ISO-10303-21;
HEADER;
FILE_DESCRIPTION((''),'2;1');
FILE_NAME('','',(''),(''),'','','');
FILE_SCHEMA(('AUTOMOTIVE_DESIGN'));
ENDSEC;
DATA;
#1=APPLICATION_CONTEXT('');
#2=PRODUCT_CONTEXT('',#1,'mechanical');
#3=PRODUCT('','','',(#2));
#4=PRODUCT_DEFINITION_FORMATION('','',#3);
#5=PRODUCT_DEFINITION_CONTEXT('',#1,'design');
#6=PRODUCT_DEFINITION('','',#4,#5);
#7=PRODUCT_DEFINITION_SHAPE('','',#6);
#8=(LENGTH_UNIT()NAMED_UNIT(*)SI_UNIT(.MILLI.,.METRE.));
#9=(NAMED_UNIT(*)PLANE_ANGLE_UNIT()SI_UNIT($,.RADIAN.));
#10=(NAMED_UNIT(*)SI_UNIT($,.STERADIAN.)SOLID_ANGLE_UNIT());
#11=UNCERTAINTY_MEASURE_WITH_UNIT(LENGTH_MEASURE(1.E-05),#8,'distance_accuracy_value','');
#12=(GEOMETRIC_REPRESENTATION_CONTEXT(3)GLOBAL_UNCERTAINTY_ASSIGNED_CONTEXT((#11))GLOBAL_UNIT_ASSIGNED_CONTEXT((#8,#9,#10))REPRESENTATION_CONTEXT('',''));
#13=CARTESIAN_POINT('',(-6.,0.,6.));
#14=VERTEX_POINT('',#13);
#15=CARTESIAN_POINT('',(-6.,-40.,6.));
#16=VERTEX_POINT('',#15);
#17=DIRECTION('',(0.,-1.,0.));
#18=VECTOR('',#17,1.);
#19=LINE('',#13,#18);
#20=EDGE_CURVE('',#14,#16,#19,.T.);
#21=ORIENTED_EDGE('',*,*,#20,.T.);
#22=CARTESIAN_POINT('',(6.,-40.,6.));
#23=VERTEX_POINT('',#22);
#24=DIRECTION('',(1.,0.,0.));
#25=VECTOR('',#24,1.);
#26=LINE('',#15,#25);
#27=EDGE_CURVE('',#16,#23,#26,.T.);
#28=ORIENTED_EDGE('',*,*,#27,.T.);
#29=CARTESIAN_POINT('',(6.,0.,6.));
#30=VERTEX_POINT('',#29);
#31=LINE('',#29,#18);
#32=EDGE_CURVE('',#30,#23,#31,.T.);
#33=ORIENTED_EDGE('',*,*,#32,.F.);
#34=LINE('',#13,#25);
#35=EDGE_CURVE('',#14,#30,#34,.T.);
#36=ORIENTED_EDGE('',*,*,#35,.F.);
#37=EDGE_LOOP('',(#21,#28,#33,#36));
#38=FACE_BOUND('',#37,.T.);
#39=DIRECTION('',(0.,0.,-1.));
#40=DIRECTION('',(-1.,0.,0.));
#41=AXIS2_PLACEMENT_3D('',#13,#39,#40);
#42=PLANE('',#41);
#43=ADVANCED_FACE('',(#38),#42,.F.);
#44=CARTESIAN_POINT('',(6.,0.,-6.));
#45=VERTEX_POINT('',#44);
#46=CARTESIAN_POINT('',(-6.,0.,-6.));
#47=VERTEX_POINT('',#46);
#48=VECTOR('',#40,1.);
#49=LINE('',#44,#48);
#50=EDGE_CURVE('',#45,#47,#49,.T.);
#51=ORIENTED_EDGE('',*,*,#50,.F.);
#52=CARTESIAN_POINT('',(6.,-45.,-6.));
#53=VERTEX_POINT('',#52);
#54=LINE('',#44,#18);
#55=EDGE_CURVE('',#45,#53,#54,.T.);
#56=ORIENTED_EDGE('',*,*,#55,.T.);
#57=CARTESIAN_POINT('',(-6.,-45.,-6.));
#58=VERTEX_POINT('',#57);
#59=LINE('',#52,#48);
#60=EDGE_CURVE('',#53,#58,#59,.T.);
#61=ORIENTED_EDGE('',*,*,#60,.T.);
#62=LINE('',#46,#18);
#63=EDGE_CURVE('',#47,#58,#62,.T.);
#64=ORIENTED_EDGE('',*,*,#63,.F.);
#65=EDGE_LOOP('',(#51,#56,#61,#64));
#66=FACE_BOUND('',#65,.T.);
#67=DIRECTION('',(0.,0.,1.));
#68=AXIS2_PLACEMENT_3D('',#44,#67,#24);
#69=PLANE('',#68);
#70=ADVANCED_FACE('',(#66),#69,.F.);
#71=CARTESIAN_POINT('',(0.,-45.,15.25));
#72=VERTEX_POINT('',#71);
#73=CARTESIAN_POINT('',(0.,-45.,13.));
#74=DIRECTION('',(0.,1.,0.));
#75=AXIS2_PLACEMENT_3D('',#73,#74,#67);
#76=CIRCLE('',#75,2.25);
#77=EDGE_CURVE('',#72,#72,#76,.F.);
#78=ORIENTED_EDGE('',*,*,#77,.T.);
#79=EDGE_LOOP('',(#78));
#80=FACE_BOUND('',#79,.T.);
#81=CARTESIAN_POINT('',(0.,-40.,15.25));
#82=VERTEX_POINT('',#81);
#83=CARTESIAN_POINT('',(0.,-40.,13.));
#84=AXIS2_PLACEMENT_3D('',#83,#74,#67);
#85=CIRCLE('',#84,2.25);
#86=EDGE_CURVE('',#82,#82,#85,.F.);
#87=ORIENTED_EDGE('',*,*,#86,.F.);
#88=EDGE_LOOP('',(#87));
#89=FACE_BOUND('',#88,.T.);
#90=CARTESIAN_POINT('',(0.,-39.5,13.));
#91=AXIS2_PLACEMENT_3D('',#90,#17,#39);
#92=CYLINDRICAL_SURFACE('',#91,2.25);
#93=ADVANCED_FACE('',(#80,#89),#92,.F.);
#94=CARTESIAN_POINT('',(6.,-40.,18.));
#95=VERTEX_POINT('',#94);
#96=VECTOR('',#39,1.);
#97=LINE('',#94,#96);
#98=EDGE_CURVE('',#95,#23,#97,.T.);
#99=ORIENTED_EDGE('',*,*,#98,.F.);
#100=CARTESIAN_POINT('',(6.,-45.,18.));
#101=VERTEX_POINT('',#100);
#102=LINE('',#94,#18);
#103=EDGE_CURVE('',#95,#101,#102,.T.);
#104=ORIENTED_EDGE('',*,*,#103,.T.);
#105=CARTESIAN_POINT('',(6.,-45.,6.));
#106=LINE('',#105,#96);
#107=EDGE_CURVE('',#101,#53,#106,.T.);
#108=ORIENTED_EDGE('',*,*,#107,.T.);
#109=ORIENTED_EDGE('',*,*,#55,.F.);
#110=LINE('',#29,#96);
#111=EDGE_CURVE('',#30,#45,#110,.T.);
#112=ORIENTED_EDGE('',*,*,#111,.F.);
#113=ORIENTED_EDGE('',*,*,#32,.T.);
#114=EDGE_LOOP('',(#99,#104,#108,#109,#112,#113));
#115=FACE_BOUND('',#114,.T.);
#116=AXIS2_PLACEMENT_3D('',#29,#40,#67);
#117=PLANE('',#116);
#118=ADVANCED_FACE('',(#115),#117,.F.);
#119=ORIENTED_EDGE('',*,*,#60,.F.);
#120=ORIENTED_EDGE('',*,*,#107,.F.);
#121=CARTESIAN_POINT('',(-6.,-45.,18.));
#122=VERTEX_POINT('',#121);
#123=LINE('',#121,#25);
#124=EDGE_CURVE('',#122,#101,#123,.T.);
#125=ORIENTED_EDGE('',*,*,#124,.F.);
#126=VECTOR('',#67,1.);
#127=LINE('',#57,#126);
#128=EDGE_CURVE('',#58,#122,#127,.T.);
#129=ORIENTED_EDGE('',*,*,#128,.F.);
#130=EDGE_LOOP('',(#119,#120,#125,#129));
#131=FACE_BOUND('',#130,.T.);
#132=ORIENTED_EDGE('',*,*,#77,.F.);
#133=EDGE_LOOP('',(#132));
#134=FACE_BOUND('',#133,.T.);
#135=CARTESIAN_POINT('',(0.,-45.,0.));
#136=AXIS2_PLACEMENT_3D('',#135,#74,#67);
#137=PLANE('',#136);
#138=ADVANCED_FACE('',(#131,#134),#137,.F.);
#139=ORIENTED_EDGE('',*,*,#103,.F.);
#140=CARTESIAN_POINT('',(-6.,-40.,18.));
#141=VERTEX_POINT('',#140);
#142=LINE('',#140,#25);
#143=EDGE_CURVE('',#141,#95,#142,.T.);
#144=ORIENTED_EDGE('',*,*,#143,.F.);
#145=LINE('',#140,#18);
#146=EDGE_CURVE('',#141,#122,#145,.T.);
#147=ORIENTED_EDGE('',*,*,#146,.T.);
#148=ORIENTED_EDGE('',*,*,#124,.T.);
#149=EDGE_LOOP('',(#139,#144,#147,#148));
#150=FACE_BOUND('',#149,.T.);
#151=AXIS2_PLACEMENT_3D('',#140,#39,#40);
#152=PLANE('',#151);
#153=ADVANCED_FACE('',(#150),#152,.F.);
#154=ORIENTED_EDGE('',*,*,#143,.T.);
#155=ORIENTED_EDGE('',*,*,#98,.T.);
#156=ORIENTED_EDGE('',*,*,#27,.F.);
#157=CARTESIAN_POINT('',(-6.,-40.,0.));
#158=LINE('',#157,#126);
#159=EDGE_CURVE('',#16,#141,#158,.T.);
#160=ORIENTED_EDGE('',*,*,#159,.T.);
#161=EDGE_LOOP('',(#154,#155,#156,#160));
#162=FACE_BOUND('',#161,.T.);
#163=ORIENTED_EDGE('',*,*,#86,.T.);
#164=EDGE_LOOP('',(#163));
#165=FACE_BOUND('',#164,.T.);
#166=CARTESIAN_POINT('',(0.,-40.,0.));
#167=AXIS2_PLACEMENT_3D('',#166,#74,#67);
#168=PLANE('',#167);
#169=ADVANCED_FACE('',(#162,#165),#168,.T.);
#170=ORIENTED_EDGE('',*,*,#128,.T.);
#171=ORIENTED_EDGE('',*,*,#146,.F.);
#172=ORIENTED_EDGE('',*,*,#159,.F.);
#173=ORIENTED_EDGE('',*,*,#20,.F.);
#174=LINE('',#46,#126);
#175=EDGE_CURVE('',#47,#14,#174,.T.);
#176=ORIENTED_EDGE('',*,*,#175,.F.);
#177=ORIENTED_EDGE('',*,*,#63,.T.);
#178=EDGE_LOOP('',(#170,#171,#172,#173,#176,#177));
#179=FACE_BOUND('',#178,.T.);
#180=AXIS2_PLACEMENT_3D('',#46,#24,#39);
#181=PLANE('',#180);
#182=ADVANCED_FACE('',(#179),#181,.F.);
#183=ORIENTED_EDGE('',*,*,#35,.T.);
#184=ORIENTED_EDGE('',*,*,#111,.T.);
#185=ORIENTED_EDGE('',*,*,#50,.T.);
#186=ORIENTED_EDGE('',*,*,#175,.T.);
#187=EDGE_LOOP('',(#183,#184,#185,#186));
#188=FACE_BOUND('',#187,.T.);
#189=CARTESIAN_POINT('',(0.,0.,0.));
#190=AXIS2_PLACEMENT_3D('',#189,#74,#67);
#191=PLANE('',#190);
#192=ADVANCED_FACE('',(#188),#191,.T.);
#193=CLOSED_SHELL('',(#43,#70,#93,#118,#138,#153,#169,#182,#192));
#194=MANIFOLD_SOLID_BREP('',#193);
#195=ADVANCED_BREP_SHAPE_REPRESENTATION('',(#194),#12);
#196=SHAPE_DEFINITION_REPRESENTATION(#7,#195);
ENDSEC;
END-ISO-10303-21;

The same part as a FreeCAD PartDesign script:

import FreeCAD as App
import Part
import Sketcher

V = App.Vector
Q = App.Units.Quantity

doc = App.newDocument("Part")
body = doc.addObject("PartDesign::Body", "Body")

# Sketch on XZ plane
sketch1 = body.newObject("Sketcher::SketchObject", "Sketch")
sketch1.AttachmentSupport = (doc.getObject("XZ_Plane"), [""])
sketch1.MapMode = "FlatFace"
sketch1.AttachmentOffset = App.Placement(V(0, 0, 45), App.Rotation())
sketch1.addGeometry([
    Part.LineSegment(V(-6, -6, 0), V(-6, 6, 0)),
    Part.LineSegment(V(-6, 6, 0), V(6, 6, 0)),
    Part.LineSegment(V(6, 6, 0), V(6, -6, 0)),
    Part.LineSegment(V(6, -6, 0), V(-6, -6, 0)),
], False)
sketch1.addConstraint([
    Sketcher.Constraint("Coincident", 0, 2, 1, 1),
    Sketcher.Constraint("Coincident", 1, 2, 2, 1),
    Sketcher.Constraint("Coincident", 2, 2, 3, 1),
    Sketcher.Constraint("Coincident", 3, 2, 0, 1),
    Sketcher.Constraint("Vertical", 0),
    Sketcher.Constraint("Horizontal", 1),
    Sketcher.Constraint("Vertical", 2),
    Sketcher.Constraint("Horizontal", 3),
    Sketcher.Constraint("Symmetric", 0, 2, 2, 2, -1, 1),
    Sketcher.Constraint("Equal", 3, 0),
    Sketcher.Constraint("DistanceX", 1, 1, 1, 2, Q("12 mm")),
])
pad1 = body.newObject("PartDesign::Pad", "Pad")
pad1.Profile = sketch1
pad1.Length = 45
pad1.Reversed = True

# Sketch on XZ plane
sketch2 = body.newObject("Sketcher::SketchObject", "Sketch001")
sketch2.AttachmentSupport = (doc.getObject("XZ_Plane"), [""])
sketch2.MapMode = "FlatFace"
sketch2.AttachmentOffset = App.Placement(V(0, 0, 45), App.Rotation())
sketch2.addGeometry([
    Part.LineSegment(V(-6, 0, 0), V(-6, 18, 0)),
    Part.LineSegment(V(-6, 18, 0), V(6, 18, 0)),
    Part.LineSegment(V(6, 18, 0), V(6, 0, 0)),
    Part.LineSegment(V(6, 0, 0), V(-6, 0, 0)),
], False)
sketch2.addConstraint([
    Sketcher.Constraint("Coincident", 0, 2, 1, 1),
    Sketcher.Constraint("Coincident", 1, 2, 2, 1),
    Sketcher.Constraint("Coincident", 2, 2, 3, 1),
    Sketcher.Constraint("Coincident", 3, 2, 0, 1),
    Sketcher.Constraint("Vertical", 0),
    Sketcher.Constraint("Horizontal", 1),
    Sketcher.Constraint("Vertical", 2),
    Sketcher.Constraint("Horizontal", 3),
    Sketcher.Constraint("Symmetric", 2, 2, 3, 2, -1, 1),
    Sketcher.Constraint("DistanceX", 1, 1, 1, 2, Q("12 mm")),
    Sketcher.Constraint("DistanceY", 0, 1, 0, 2, Q("18 mm")),
])
pad2 = body.newObject("PartDesign::Pad", "Pad001")
pad2.Profile = sketch2
pad2.Length = 5
pad2.Reversed = True

# Sketch on XZ plane
sketch3 = body.newObject("Sketcher::SketchObject", "Sketch002")
sketch3.AttachmentSupport = (doc.getObject("XZ_Plane"), [""])
sketch3.MapMode = "FlatFace"
sketch3.AttachmentOffset = App.Placement(V(0, 0, 45.5), App.Rotation())
sketch3.addGeometry(Part.Circle(V(0, 13, 0), V(0, 0, 1), 2.25), False)
sketch3.addConstraint([
    Sketcher.Constraint("PointOnObject", 0, 3, -2),
    Sketcher.Constraint("Diameter", 0, Q("4.5 mm")),
    Sketcher.Constraint("DistanceY", -1, 1, 0, 3, Q("13 mm")),
])
pocket1 = body.newObject("PartDesign::Pocket", "Pocket")
pocket1.Profile = sketch3
pocket1.Length = 6

doc.recompute()
